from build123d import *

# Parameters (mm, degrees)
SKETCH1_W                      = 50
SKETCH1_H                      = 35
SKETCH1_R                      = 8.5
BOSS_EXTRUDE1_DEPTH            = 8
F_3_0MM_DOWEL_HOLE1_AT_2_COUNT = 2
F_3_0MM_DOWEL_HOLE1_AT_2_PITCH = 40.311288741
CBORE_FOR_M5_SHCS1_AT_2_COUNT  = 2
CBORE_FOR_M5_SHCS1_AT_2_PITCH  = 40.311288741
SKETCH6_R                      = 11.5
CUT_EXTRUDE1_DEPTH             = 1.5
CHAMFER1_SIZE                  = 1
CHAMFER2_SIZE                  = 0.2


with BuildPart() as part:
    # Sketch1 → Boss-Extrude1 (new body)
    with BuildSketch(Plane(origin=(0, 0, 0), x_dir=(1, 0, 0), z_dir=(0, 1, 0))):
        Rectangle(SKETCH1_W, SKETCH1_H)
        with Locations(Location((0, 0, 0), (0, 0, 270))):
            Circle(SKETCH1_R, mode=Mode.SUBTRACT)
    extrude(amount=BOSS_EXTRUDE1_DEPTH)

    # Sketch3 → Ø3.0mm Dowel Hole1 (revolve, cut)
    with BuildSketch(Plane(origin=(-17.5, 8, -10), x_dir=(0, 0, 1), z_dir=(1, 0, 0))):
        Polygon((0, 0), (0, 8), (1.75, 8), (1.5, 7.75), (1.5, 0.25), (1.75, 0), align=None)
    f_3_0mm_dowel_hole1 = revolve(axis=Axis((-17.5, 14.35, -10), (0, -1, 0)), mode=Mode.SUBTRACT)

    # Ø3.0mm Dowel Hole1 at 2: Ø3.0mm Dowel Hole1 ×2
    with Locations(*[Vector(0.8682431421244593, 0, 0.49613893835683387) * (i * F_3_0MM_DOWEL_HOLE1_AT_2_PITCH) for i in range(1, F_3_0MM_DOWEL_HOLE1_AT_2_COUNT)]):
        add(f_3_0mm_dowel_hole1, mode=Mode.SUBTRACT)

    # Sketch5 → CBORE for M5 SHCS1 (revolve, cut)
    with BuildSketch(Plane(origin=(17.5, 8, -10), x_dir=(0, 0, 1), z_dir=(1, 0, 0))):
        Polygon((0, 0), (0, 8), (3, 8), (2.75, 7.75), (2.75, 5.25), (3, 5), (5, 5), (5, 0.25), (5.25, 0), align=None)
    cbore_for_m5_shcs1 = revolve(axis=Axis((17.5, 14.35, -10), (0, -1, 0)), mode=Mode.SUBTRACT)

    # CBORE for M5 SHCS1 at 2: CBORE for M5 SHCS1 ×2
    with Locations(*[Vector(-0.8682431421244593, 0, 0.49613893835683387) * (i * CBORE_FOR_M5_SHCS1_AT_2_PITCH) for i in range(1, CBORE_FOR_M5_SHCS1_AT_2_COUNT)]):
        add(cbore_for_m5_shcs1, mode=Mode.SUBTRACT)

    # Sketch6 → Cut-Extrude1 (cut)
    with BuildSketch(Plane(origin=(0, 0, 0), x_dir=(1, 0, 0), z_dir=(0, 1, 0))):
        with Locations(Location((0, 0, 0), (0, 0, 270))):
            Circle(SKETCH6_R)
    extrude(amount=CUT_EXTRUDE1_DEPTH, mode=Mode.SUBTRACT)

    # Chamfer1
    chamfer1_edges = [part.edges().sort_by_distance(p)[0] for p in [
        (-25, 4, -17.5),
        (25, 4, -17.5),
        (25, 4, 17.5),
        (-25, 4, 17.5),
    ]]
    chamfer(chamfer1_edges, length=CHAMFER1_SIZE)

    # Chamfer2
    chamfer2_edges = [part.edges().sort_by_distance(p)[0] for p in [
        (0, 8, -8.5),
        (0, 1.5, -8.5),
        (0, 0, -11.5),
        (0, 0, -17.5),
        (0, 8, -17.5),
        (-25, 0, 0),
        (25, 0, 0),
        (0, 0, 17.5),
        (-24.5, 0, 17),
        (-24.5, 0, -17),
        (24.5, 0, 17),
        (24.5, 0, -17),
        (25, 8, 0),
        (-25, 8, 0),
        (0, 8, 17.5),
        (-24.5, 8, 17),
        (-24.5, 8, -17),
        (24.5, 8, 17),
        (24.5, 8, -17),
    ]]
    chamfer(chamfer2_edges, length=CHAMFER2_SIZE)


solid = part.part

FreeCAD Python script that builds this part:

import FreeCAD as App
import Part
import Sketcher
Q = App.Units.Quantity


def edges_at(feature, points):
    """Names of the edges that pass closest to the given points."""
    edges = feature.Shape.Edges
    near = lambda p: min(range(len(edges)), key=lambda i: edges[i].distToShape(Part.Vertex(*p))[0])
    return sorted({f"Edge{near(p) + 1}" for p in points})


def add_polygon(sketch, points):
    """Adds a closed chain of lines whose ends are joined by coincident constraints."""
    first, n = sketch.GeometryCount, len(points)
    for a, b in zip(points, points[1:] + points[:1]):
        sketch.addGeometry(Part.LineSegment(App.Vector(*a, 0), App.Vector(*b, 0)), False)
    for i in range(n):
        sketch.addConstraint(Sketcher.Constraint("Coincident", first + i, 2, first + (i + 1) % n, 1))

doc = App.newDocument("Part")
body = doc.addObject("PartDesign::Body", "Body")

# Sketch on XZ plane
sketch1 = body.newObject("Sketcher::SketchObject", "Sketch")
sketch1.AttachmentSupport = (doc.getObject("XZ_Plane"), [""])
sketch1.MapMode = "FlatFace"
add_polygon(sketch1, [(-25, -18), (-25, 18), (25, 18), (25, -18)])  # lines 0-3
sketch1.addGeometry(Part.Circle(App.Vector(0, 0, 0), App.Vector(0, 0, 1), 8), False)  # 4
sketch1.addConstraint([
    Sketcher.Constraint("Vertical", 0),
    Sketcher.Constraint("Horizontal", 1),
    Sketcher.Constraint("Vertical", 2),
    Sketcher.Constraint("Horizontal", 3),
    Sketcher.Constraint("Coincident", 4, 3, -1, 1),
    Sketcher.Constraint("Symmetric", 0, 2, 2, 2, -1, 1),
    Sketcher.Constraint("Diameter", 4, Q("17 mm")),
    Sketcher.Constraint("DistanceX", 1, 1, 1, 2, Q("50 mm")),
    Sketcher.Constraint("DistanceY", 0, 1, 0, 2, Q("35 mm")),
])
pad1 = body.newObject("PartDesign::Pad", "Pad")
pad1.Profile = sketch1
pad1.Length = 8
pad1.Reversed = True

# Sketch on YZ plane
sketch2 = body.newObject("Sketcher::SketchObject", "Sketch001")
sketch2.AttachmentSupport = (doc.getObject("YZ_Plane"), [""])
sketch2.MapMode = "FlatFace"
sketch2.AttachmentOffset = App.Placement(App.Vector(0, 0, -17.5), App.Rotation())
add_polygon(sketch2, [(0, -10), (8, -10), (8, -8.25), (7.75, -8.5), (0.25, -8.5), (0, -8.25)])  # lines 0-5
sketch2.addGeometry(Part.LineSegment(App.Vector(8, -10, 0), App.Vector(0, -10, 0)), True)  # axis
sketch2.addConstraint([
    Sketcher.Constraint("Horizontal", 0),
    Sketcher.Constraint("Vertical", 1),
    Sketcher.Constraint("Horizontal", 3),
    Sketcher.Constraint("Vertical", 5),
    Sketcher.Constraint("Horizontal", 6),
    Sketcher.Constraint("Coincident", 6, 1, 0, 2),
    Sketcher.Constraint("PointOnObject", 4, 2, -2),
    Sketcher.Constraint("PointOnObject", 6, 2, -2),
    Sketcher.Constraint("Perpendicular", 2, 4),
    Sketcher.Constraint("Horizontal", 1, 2, 4, 2),
    Sketcher.Constraint("Equal", 2, 4),
    Sketcher.Constraint("DistanceX", 0, 1, 0, 2, Q("8 mm")),
    Sketcher.Constraint("DistanceX", 3, 2, 3, 1, Q("7.5 mm")),
    Sketcher.Constraint("DistanceY", 0, 2, -1, 1, Q("10 mm")),
    Sketcher.Constraint("DistanceY", 1, 1, 1, 2, Q("1.75 mm")),
])
groove = body.newObject("PartDesign::Groove", "Groove")
groove.Profile = sketch2
groove.ReferenceAxis = (sketch2, ["Axis0"])
groove.Angle = 360
doc.recompute()

datumline = body.newObject("PartDesign::Line", "DatumLine")
datumline.Placement = App.Placement(App.Vector(0, 0, 0), App.Rotation(App.Vector(0, 0, 1), App.Vector(0.868243142, 0, 0.496138938)))
linearpattern = body.newObject("PartDesign::LinearPattern", "LinearPattern")
linearpattern.Originals = [groove]
linearpattern.Direction = (datumline, [""])
linearpattern.Mode = "offset"
linearpattern.Offset = 40.311289
linearpattern.Occurrences = 2
body.Tip = linearpattern

# Sketch on YZ plane
sketch3 = body.newObject("Sketcher::SketchObject", "Sketch002")
sketch3.AttachmentSupport = (doc.getObject("YZ_Plane"), [""])
sketch3.MapMode = "FlatFace"
sketch3.AttachmentOffset = App.Placement(App.Vector(0, 0, 17.5), App.Rotation())
add_polygon(sketch3, [(0, -10), (8, -10), (8, -4.75), (7.75, -5), (3, -5), (3, -7), (2.75, -7.25), (0.25, -7.25), (0, -7)])  # lines 0-8
sketch3.addGeometry(Part.LineSegment(App.Vector(8, -10, 0), App.Vector(0, -10, 0)), True)  # axis
sketch3.addConstraint([
    Sketcher.Constraint("Horizontal", 0),
    Sketcher.Constraint("Vertical", 1),
    Sketcher.Constraint("Horizontal", 3),
    Sketcher.Constraint("Vertical", 4),
    Sketcher.Constraint("Horizontal", 6),
    Sketcher.Constraint("Vertical", 8),
    Sketcher.Constraint("Horizontal", 9),
    Sketcher.Constraint("Coincident", 9, 1, 0, 2),
    Sketcher.Constraint("PointOnObject", 7, 2, -2),
    Sketcher.Constraint("PointOnObject", 9, 2, -2),
    Sketcher.Constraint("Parallel", 2, 5),
    Sketcher.Constraint("Perpendicular", 5, 7),
    Sketcher.Constraint("Horizontal", 4, 2, 7, 2),
    Sketcher.Constraint("Equal", 2, 5),
    Sketcher.Constraint("Equal", 5, 7),
    Sketcher.Constraint("DistanceX", 0, 1, 0, 2, Q("8 mm")),
    Sketcher.Constraint("DistanceY", 4, 2, 4, 1, Q("2 mm")),
    Sketcher.Constraint("DistanceY", 8, 2, 8, 1, Q("3 mm")),
    Sketcher.Constraint("DistanceX", 6, 2, 6, 1, Q("2.5 mm")),
    Sketcher.Constraint("DistanceY", 0, 2, -1, 1, Q("10 mm")),
    Sketcher.Constraint("DistanceX", -1, 1, 3, 2, Q("3 mm")),
])
groove2 = body.newObject("PartDesign::Groove", "Groove001")
groove2.Profile = sketch3
groove2.ReferenceAxis = (sketch3, ["Axis0"])
groove2.Angle = 360
doc.recompute()

datumline2 = body.newObject("PartDesign::Line", "DatumLine001")
datumline2.Placement = App.Placement(App.Vector(0, 0, 0), App.Rotation(App.Vector(0, 0, 1), App.Vector(-0.868243142, 0, 0.496138938)))
linearpattern2 = body.newObject("PartDesign::LinearPattern", "LinearPattern001")
linearpattern2.Originals = [groove2]
linearpattern2.Direction = (datumline2, [""])
linearpattern2.Mode = "offset"
linearpattern2.Offset = 40.311289
linearpattern2.Occurrences = 2
body.Tip = linearpattern2

# Sketch on XZ plane
sketch4 = body.newObject("Sketcher::SketchObject", "Sketch003")
sketch4.AttachmentSupport = (doc.getObject("XZ_Plane"), [""])
sketch4.MapMode = "FlatFace"
sketch4.addGeometry(Part.Circle(App.Vector(0, 0, 0), App.Vector(0, 0, 1), 12), False)
sketch4.addConstraint([
    Sketcher.Constraint("Coincident", 0, 3, -1, 1),
    Sketcher.Constraint("Diameter", 0, Q("23 mm")),
])
pocket1 = body.newObject("PartDesign::Pocket", "Pocket")
pocket1.Profile = sketch4
pocket1.Length = 1.5
doc.recompute()

chamfer = body.newObject("PartDesign::Chamfer", "Chamfer")
chamfer.Base = (pocket1, edges_at(pocket1, [
    (-25, 4, -17.5),
    (25, 4, -17.5),
    (25, 4, 17.5),
    (-25, 4, 17.5),
]))
chamfer.Size = 1
doc.recompute()

chamfer2 = body.newObject("PartDesign::Chamfer", "Chamfer001")
chamfer2.Base = (chamfer, edges_at(chamfer, [
    (0, 8, -8.5),
    (0, 1.5, -8.5),
    (0, 0, -11.5),
    (0, 0, -17.5),
    (0, 8, -17.5),
    (-25, 0, 0),
    (25, 0, 0),
    (0, 0, 17.5),
    (-24.5, 0, 17),
    (-24.5, 0, -17),
    (24.5, 0, 17),
    (24.5, 0, -17),
    (25, 8, 0),
    (-25, 8, 0),
    (0, 8, 17.5),
    (-24.5, 8, 17),
    (-24.5, 8, -17),
    (24.5, 8, 17),
    (24.5, 8, -17),
]))
chamfer2.Size = 0.2

doc.recompute()
